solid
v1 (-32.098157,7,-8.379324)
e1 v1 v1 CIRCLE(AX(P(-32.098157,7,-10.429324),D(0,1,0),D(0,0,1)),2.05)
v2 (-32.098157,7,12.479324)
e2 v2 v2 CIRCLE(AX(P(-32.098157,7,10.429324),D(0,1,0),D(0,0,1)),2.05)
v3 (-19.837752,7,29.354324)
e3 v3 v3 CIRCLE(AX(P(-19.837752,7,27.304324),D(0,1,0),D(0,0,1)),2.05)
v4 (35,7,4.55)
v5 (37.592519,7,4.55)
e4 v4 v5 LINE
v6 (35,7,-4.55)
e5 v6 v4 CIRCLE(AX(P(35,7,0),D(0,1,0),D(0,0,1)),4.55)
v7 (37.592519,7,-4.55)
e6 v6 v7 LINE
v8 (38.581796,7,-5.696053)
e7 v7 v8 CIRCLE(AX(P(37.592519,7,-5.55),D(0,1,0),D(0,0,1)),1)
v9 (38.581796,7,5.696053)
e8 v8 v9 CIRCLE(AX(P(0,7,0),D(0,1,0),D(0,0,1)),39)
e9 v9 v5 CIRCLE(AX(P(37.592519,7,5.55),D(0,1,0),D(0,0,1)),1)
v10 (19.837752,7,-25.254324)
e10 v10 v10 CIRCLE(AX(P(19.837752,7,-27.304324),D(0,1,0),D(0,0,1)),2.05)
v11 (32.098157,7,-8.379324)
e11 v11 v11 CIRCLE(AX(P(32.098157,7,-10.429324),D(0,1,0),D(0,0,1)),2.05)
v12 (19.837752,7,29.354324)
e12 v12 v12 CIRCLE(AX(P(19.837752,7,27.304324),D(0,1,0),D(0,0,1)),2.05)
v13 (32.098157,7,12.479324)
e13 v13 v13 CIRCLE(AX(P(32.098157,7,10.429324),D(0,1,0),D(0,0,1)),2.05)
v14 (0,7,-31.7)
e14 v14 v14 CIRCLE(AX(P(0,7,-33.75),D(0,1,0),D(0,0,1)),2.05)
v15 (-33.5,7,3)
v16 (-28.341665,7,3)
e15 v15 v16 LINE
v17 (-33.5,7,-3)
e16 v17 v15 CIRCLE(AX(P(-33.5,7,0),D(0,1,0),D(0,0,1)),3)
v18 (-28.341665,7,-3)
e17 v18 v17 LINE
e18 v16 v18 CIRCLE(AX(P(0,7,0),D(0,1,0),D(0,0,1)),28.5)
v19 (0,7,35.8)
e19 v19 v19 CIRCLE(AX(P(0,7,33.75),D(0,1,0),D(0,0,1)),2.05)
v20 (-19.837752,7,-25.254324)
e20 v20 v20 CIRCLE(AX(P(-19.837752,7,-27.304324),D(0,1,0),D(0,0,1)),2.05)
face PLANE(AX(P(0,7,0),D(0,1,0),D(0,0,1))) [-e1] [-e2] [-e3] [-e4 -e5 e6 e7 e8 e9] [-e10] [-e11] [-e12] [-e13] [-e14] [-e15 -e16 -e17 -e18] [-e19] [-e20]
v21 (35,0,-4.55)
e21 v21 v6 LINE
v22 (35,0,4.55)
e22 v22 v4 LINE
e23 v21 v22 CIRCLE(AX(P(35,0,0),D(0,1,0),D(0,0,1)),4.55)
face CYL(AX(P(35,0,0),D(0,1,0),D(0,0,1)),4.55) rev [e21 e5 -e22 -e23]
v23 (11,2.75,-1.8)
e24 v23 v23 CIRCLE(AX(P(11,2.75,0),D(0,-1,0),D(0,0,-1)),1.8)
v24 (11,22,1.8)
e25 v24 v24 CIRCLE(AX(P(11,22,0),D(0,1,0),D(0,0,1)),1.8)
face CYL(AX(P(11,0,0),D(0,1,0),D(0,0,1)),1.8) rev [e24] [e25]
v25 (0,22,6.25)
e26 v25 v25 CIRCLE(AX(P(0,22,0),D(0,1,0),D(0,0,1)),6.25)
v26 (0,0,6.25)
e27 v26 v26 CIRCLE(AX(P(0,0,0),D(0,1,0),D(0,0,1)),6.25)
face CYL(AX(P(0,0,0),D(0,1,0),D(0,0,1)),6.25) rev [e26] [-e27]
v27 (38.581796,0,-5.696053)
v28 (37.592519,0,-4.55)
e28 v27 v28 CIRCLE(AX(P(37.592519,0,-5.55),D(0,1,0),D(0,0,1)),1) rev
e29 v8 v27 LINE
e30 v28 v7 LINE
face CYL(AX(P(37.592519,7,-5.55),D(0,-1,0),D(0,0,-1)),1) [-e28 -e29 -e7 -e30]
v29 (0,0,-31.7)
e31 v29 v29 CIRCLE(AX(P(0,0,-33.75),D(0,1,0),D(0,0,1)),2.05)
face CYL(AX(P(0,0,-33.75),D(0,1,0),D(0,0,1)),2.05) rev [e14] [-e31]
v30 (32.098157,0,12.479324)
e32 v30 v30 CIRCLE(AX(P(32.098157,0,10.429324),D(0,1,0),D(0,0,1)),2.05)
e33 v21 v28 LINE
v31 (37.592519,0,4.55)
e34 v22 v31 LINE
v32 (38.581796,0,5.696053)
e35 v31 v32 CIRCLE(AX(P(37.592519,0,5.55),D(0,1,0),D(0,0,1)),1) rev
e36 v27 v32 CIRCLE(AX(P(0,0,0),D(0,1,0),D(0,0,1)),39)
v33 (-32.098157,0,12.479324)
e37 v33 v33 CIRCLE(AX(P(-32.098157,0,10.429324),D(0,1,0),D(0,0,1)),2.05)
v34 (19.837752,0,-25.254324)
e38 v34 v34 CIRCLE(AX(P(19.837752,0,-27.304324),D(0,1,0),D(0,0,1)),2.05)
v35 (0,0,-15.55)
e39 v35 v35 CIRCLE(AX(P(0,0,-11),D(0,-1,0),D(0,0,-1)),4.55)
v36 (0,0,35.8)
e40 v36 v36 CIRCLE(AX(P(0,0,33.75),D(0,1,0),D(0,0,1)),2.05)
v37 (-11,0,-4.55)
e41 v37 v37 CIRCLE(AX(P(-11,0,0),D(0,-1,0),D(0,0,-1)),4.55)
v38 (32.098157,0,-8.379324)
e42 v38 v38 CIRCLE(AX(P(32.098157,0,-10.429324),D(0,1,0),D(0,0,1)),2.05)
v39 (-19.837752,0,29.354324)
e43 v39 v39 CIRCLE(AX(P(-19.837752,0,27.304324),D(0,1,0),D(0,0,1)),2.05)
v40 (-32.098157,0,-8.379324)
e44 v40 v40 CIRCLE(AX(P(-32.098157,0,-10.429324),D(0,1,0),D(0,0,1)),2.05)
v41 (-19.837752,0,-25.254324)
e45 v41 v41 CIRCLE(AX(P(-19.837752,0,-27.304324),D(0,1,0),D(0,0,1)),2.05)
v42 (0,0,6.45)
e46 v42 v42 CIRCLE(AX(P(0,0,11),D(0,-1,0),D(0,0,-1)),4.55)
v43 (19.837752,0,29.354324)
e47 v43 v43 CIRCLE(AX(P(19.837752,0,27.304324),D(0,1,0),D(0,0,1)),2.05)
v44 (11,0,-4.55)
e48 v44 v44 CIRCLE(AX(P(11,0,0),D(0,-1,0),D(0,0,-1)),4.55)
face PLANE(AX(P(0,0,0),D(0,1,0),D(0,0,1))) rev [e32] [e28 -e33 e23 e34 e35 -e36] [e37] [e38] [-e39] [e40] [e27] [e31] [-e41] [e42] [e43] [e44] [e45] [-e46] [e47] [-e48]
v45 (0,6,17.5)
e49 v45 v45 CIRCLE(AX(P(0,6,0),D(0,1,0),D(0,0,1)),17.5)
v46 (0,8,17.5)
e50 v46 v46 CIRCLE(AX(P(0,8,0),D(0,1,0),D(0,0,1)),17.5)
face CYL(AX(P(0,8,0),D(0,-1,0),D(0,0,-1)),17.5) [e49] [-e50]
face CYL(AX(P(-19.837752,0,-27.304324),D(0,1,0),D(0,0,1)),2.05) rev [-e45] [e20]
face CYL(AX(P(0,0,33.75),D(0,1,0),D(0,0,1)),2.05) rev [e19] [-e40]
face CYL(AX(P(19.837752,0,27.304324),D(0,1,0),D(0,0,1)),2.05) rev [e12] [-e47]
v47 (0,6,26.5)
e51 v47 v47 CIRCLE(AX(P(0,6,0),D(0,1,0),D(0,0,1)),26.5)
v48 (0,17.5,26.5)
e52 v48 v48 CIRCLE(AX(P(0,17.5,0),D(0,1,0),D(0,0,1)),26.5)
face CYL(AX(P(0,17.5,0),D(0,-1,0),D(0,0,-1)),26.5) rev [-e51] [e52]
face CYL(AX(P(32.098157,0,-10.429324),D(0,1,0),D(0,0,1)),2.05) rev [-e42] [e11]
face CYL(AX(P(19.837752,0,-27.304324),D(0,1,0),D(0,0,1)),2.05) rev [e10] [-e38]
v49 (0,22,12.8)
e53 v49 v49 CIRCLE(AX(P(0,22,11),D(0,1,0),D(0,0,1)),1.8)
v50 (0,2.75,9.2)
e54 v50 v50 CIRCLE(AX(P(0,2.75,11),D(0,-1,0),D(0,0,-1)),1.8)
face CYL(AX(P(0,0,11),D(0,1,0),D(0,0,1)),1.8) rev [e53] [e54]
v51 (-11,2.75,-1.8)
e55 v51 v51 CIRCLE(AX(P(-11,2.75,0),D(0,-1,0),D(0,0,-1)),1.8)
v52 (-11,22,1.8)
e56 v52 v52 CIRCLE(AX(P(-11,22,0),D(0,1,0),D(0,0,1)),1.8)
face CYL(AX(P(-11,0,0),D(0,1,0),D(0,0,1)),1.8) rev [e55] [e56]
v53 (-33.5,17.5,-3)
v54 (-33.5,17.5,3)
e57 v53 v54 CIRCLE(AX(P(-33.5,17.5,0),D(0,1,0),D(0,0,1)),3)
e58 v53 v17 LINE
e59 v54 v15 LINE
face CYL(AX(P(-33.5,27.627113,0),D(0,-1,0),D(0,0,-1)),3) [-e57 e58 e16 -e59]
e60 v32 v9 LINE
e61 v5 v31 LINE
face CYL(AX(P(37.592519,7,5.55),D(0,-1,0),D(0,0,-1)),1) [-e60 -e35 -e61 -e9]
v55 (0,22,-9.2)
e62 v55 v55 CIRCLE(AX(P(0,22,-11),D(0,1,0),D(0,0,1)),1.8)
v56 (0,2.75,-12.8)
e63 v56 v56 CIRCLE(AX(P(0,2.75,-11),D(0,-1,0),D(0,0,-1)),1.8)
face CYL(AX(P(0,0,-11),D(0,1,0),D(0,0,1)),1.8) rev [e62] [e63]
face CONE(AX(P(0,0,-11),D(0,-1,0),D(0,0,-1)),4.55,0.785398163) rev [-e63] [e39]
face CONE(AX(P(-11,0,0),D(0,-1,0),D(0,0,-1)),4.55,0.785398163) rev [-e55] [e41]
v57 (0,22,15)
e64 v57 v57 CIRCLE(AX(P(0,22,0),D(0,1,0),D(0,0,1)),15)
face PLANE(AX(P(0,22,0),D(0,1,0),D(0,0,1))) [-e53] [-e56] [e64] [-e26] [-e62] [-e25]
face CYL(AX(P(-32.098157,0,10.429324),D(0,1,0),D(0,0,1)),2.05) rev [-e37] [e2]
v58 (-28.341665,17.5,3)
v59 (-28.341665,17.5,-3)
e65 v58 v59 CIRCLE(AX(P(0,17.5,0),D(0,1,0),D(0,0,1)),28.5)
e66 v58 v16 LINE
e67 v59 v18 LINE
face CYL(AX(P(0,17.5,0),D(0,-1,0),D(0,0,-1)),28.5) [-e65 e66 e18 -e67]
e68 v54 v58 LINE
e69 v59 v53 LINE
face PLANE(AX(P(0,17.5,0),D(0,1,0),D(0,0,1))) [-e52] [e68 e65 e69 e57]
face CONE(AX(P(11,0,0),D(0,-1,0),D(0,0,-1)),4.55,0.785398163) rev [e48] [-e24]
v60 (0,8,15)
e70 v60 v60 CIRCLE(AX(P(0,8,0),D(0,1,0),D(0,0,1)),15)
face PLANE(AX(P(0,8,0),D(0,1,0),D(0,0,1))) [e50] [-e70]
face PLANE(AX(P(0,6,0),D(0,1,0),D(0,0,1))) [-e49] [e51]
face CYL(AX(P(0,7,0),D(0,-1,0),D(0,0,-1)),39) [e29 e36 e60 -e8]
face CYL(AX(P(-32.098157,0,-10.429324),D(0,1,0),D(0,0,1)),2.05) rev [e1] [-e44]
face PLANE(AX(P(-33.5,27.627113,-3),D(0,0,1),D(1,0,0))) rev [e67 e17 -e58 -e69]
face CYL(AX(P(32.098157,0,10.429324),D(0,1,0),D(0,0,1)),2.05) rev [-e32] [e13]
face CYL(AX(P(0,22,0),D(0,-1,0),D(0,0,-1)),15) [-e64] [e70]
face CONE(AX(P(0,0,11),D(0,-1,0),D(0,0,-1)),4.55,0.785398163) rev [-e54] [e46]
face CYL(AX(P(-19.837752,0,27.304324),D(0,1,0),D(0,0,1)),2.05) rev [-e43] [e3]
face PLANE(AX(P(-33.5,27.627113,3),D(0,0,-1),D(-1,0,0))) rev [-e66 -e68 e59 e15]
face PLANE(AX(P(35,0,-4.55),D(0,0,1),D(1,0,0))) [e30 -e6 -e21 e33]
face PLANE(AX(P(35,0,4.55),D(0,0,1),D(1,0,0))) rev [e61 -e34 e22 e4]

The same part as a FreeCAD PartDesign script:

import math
import FreeCAD as App
import Part
import Sketcher

V = App.Vector


def edges_at(feature, points):
    """Names of the edges that pass closest to the given points."""
    edges = feature.Shape.Edges
    near = lambda p: min(range(len(edges)), key=lambda i: edges[i].distToShape(Part.Vertex(*p))[0])
    return sorted({f"Edge{near(p) + 1}" for p in points})

doc = App.newDocument("Part")
body = doc.addObject("PartDesign::Body", "Body")

sketch1 = body.newObject("Sketcher::SketchObject", "Sketch")
sketch1.AttachmentSupport = (doc.getObject("XZ_Plane"), [""])
sketch1.MapMode = "FlatFace"
sketch1.addGeometry(Part.Circle(V(0, 0, 0), V(0, 0, 1), 39), False)
sketch1.addConstraint([
    Sketcher.Constraint("Coincident", 0, 3, -1, 1),
    Sketcher.Constraint("Diameter", 0, 78.0),
])
pad1 = body.newObject("PartDesign::Pad", "Pad")
pad1.Profile = sketch1
pad1.Length = 7
pad1.Reversed = True

sketch2 = body.newObject("Sketcher::SketchObject", "Sketch001")
sketch2.AttachmentSupport = (doc.getObject("XZ_Plane"), [""])
sketch2.MapMode = "FlatFace"
sketch2.AttachmentOffset = App.Placement(V(0, 0, -7), App.Rotation())
sketch2.addGeometry(Part.Circle(V(0, 0, 0), V(0, 0, 1), 18), False)
sketch2.addConstraint([
    Sketcher.Constraint("Coincident", 0, 3, -1, 1),
    Sketcher.Constraint("Diameter", 0, 35.0),
])
pad2 = body.newObject("PartDesign::Pad", "Pad001")
pad2.Profile = sketch2
pad2.Length = 1
pad2.Reversed = True

sketch3 = body.newObject("Sketcher::SketchObject", "Sketch002")
sketch3.AttachmentSupport = (doc.getObject("XZ_Plane"), [""])
sketch3.MapMode = "FlatFace"
sketch3.AttachmentOffset = App.Placement(V(0, 0, -8), App.Rotation())
sketch3.addGeometry(Part.Circle(V(0, 0, 0), V(0, 0, 1), 15), False)
sketch3.addConstraint([
    Sketcher.Constraint("Coincident", 0, 3, -1, 1),
    Sketcher.Constraint("Diameter", 0, 30.0),
])
pad3 = body.newObject("PartDesign::Pad", "Pad002")
pad3.Profile = sketch3
pad3.Length = 14
pad3.Reversed = True

sketch4 = body.newObject("Sketcher::SketchObject", "Sketch003")
sketch4.AttachmentSupport = (doc.getObject("XZ_Plane"), [""])
sketch4.MapMode = "FlatFace"
sketch4.AttachmentOffset = App.Placement(V(0, 0, -22), App.Rotation())
sketch4.addGeometry([
    Part.Circle(V(0, 0, 0), V(0, 0, 1), 6.2),
    Part.Circle(V(0, -11, 0), V(0, 0, 1), 1.8),
    Part.Circle(V(11, 0, 0), V(0, 0, 1), 1.8),
    Part.Circle(V(0, 11, 0), V(0, 0, 1), 1.8),
    Part.Circle(V(-11, 0, 0), V(0, 0, 1), 1.8),
], False)
sketch4.addConstraint([
    Sketcher.Constraint("Coincident", 0, 3, -1, 1),
    Sketcher.Constraint("Equal", 1, 2),
    Sketcher.Constraint("Equal", 2, 3),
    Sketcher.Constraint("Equal", 3, 4),
    Sketcher.Constraint("Symmetric", 1, 3, 3, 3, -1, 1),
    Sketcher.Constraint("Symmetric", 2, 3, 4, 3, -1, 1),
    Sketcher.Constraint("PointOnObject", 1, 3, -2),
    Sketcher.Constraint("PointOnObject", 2, 3, -1),
    Sketcher.Constraint("Diameter", 0, 12.5),
    Sketcher.Constraint("Diameter", 1, 3.6),
    Sketcher.Constraint("DistanceY", 1, 3, -1, 1, 11.0),
    Sketcher.Constraint("DistanceX", -1, 1, 2, 3, 11.0),
])
pocket1 = body.newObject("PartDesign::Pocket", "Pocket")
pocket1.Profile = sketch4
pocket1.Type = "ThroughAll"
pocket1.Reversed = True

sketch5 = body.newObject("Sketcher::SketchObject", "Sketch004")
sketch5.AttachmentSupport = (doc.getObject("XZ_Plane"), [""])
sketch5.MapMode = "FlatFace"
sketch5.addGeometry([
    Part.Circle(V(11, 0, 0), V(0, 0, 1), 1.8),
    Part.Circle(V(0, -11, 0), V(0, 0, 1), 1.8),
    Part.Circle(V(-11, 0, 0), V(0, 0, 1), 1.8),
    Part.Circle(V(0, 11, 0), V(0, 0, 1), 1.8),
], False)
sketch5.addConstraint([
    Sketcher.Constraint("Equal", 0, 1),
    Sketcher.Constraint("Equal", 1, 2),
    Sketcher.Constraint("Equal", 2, 3),
    Sketcher.Constraint("Symmetric", 0, 3, 2, 3, -1, 1),
    Sketcher.Constraint("Symmetric", 1, 3, 3, 3, -1, 1),
    Sketcher.Constraint("PointOnObject", 0, 3, -1),
    Sketcher.Constraint("PointOnObject", 1, 3, -2),
    Sketcher.Constraint("Diameter", 0, 3.5),
    Sketcher.Constraint("DistanceX", -1, 1, 0, 3, 11.0),
    Sketcher.Constraint("DistanceY", 1, 3, -1, 1, 11.0),
])
doc.recompute()
hole = body.newObject("PartDesign::Hole", "Hole")
hole.Profile = sketch5
hole.ThreadType = "None"
hole.Diameter = 3.5
hole.DepthType = "ThroughAll"
hole.HoleCutType = "Countersink"
hole.HoleCutDiameter = 9.1
hole.HoleCutCountersinkAngle = 90

sketch6 = body.newObject("Sketcher::SketchObject", "Sketch005")
sketch6.AttachmentSupport = (doc.getObject("XZ_Plane"), [""])
sketch6.MapMode = "FlatFace"
sketch6.AttachmentOffset = App.Placement(V(0, 0, -7), App.Rotation())
sketch6.addGeometry([
    Part.Circle(V(0, 0, 0), V(0, 0, 1), 28),
    Part.Circle(V(0, 0, 0), V(0, 0, 1), 26),
], False)
sketch6.addConstraint([
    Sketcher.Constraint("Coincident", 0, 3, -1, 1),
    Sketcher.Constraint("Coincident", 1, 3, -1, 1),
    Sketcher.Constraint("Diameter", 0, 57.0),
    Sketcher.Constraint("Diameter", 1, 53.0),
])
pad4 = body.newObject("PartDesign::Pad", "Pad003")
pad4.Profile = sketch6
pad4.Length = 10.5
pad4.Reversed = True

sketch7 = body.newObject("Sketcher::SketchObject", "Sketch006")
sketch7.AttachmentSupport = (doc.getObject("XZ_Plane"), [""])
sketch7.MapMode = "FlatFace"
sketch7.AttachmentOffset = App.Placement(V(0, 0, -7), App.Rotation())
sketch7.addGeometry([
    Part.Circle(V(0, 0, 0), V(0, 0, 1), 26),
    Part.Circle(V(0, 0, 0), V(0, 0, 1), 18),
], False)
sketch7.addConstraint([
    Sketcher.Constraint("Coincident", 0, 3, -1, 1),
    Sketcher.Constraint("Coincident", 1, 3, -1, 1),
    Sketcher.Constraint("Diameter", 0, 53.0),
    Sketcher.Constraint("Diameter", 1, 35.0),
])
pocket2 = body.newObject("PartDesign::Pocket", "Pocket001")
pocket2.Profile = sketch7
pocket2.Length = 1
pocket2.Reversed = True

sketch8 = body.newObject("Sketcher::SketchObject", "Sketch007")
sketch8.AttachmentSupport = (doc.getObject("XZ_Plane"), [""])
sketch8.MapMode = "FlatFace"
sketch8.AttachmentOffset = App.Placement(V(0, 0, -7), App.Rotation())
sketch8.addGeometry([
    Part.Circle(V(0, -33.8, 0), V(0, 0, 1), 2),
    Part.Circle(V(19.8, -27.3, 0), V(0, 0, 1), 2),
    Part.Circle(V(32.1, -10.4, 0), V(0, 0, 1), 2),
    Part.Circle(V(32.1, 10.4, 0), V(0, 0, 1), 2),
    Part.Circle(V(19.8, 27.3, 0), V(0, 0, 1), 2),
    Part.Circle(V(0, 33.8, 0), V(0, 0, 1), 2),
    Part.Circle(V(-19.8, 27.3, 0), V(0, 0, 1), 2),
    Part.Circle(V(-32.1, 10.4, 0), V(0, 0, 1), 2),
    Part.Circle(V(-32.1, -10.4, 0), V(0, 0, 1), 2),
    Part.Circle(V(-19.8, -27.3, 0), V(0, 0, 1), 2),
], False)
sketch8.addConstraint([
    Sketcher.Constraint("Equal", 0, 1),
    Sketcher.Constraint("Equal", 1, 2),
    Sketcher.Constraint("Equal", 2, 3),
    Sketcher.Constraint("Equal", 3, 4),
    Sketcher.Constraint("Equal", 4, 5),
    Sketcher.Constraint("Equal", 5, 6),
    Sketcher.Constraint("Equal", 6, 7),
    Sketcher.Constraint("Equal", 7, 8),
    Sketcher.Constraint("Equal", 8, 9),
    Sketcher.Constraint("Symmetric", 0, 3, 5, 3, -1, 1),
    Sketcher.Constraint("Symmetric", 1, 3, 6, 3, -1, 1),
    Sketcher.Constraint("Symmetric", 2, 3, 7, 3, -1, 1),
    Sketcher.Constraint("Symmetric", 3, 3, 8, 3, -1, 1),
    Sketcher.Constraint("Symmetric", 4, 3, 9, 3, -1, 1),
    Sketcher.Constraint("Symmetric", 4, 3, 6, 3, -2),
    Sketcher.Constraint("Symmetric", 3, 3, 7, 3, -2),
    Sketcher.Constraint("PointOnObject", 0, 3, -2),
    Sketcher.Constraint("Diameter", 0, 4.1),
    Sketcher.Constraint("DistanceY", 0, 3, 5, 3, 67.5),
    Sketcher.Constraint("DistanceY", 1, 3, 2, 3, 16.875),
    Sketcher.Constraint("DistanceX", 6, 3, 3, 3, 51.93591),
    Sketcher.Constraint("DistanceX", -1, 1, 1, 3, 19.837752),
    Sketcher.Constraint("DistanceY", 1, 3, -1, 1, 27.304324),
])
pocket3 = body.newObject("PartDesign::Pocket", "Pocket002")
pocket3.Profile = sketch8
pocket3.Type = "ThroughAll"
pocket3.Reversed = True

sketch9 = body.newObject("Sketcher::SketchObject", "Sketch008")
sketch9.AttachmentSupport = (doc.getObject("XZ_Plane"), [""])
sketch9.MapMode = "FlatFace"
sketch9.AttachmentOffset = App.Placement(V(0, 0, -7), App.Rotation())
sketch9.addGeometry([
    Part.LineSegment(V(-28.3, -3, 0), V(-33.5, -3, 0)),
    Part.ArcOfCircle(Part.Circle(V(-33.5, 0, 0), V(0, 0, 1), 3), math.radians(90), math.radians(270)),
    Part.LineSegment(V(-33.5, 3, 0), V(-28.3, 3, 0)),
    Part.ArcOfCircle(Part.Circle(V(0, 0, 0), V(0, 0, 1), 28.5), math.radians(173.96), math.radians(186.04)),
], False)
sketch9.addConstraint([
    Sketcher.Constraint("Tangent", 0, 2, 1, 2),
    Sketcher.Constraint("Tangent", 1, 1, 2, 1),
    Sketcher.Constraint("Coincident", 2, 2, 3, 1),
    Sketcher.Constraint("Coincident", 3, 2, 0, 1),
    Sketcher.Constraint("Horizontal", 0),
    Sketcher.Constraint("Horizontal", 2),
    Sketcher.Constraint("Coincident", 3, 3, -1, 1),
    Sketcher.Constraint("PointOnObject", 1, 3, -1),
    Sketcher.Constraint("Radius", 1, 3.0),
    Sketcher.Constraint("Radius", 3, 28.5),
    Sketcher.Constraint("DistanceX", 1, 3, -1, 1, 33.5),
])
pad5 = body.newObject("PartDesign::Pad", "Pad004")
pad5.Profile = sketch9
pad5.Length = 10.5
pad5.Reversed = True

sketch10 = body.newObject("Sketcher::SketchObject", "Sketch009")
sketch10.AttachmentSupport = (doc.getObject("XZ_Plane"), [""])
sketch10.MapMode = "FlatFace"
sketch10.AttachmentOffset = App.Placement(V(0, 0, -7), App.Rotation())
sketch10.addGeometry([
    Part.LineSegment(V(38.7, -4.5, 0), V(35, -4.5, 0)),
    Part.ArcOfCircle(Part.Circle(V(35, 0, 0), V(0, 0, 1), 4.5), math.radians(90), math.radians(270)),
    Part.LineSegment(V(35, 4.5, 0), V(38.7, 4.5, 0)),
    Part.ArcOfCircle(Part.Circle(V(0, 0, 0), V(0, 0, 1), 39), math.radians(-6.7), math.radians(6.7)),
], False)
sketch10.addConstraint([
    Sketcher.Constraint("Tangent", 0, 2, 1, 2),
    Sketcher.Constraint("Tangent", 1, 1, 2, 1),
    Sketcher.Constraint("Coincident", 2, 2, 3, 2),
    Sketcher.Constraint("Coincident", 3, 1, 0, 1),
    Sketcher.Constraint("Horizontal", 0),
    Sketcher.Constraint("Horizontal", 2),
    Sketcher.Constraint("Coincident", 3, 3, -1, 1),
    Sketcher.Constraint("PointOnObject", 1, 3, -1),
    Sketcher.Constraint("Radius", 3, 39.0),
    Sketcher.Constraint("Radius", 1, 4.55),
    Sketcher.Constraint("DistanceX", -1, 1, 1, 3, 35.0),
])
pocket4 = body.newObject("PartDesign::Pocket", "Pocket003")
pocket4.Profile = sketch10
pocket4.Type = "ThroughAll"
pocket4.Reversed = True
doc.recompute()

fillet = body.newObject("PartDesign::Fillet", "Fillet")
fillet.Base = (pocket4, edges_at(pocket4, [(38.734, 3.5, -4.55), (38.734, 3.5, 4.55)]))
fillet.Radius = 1

doc.recompute()
